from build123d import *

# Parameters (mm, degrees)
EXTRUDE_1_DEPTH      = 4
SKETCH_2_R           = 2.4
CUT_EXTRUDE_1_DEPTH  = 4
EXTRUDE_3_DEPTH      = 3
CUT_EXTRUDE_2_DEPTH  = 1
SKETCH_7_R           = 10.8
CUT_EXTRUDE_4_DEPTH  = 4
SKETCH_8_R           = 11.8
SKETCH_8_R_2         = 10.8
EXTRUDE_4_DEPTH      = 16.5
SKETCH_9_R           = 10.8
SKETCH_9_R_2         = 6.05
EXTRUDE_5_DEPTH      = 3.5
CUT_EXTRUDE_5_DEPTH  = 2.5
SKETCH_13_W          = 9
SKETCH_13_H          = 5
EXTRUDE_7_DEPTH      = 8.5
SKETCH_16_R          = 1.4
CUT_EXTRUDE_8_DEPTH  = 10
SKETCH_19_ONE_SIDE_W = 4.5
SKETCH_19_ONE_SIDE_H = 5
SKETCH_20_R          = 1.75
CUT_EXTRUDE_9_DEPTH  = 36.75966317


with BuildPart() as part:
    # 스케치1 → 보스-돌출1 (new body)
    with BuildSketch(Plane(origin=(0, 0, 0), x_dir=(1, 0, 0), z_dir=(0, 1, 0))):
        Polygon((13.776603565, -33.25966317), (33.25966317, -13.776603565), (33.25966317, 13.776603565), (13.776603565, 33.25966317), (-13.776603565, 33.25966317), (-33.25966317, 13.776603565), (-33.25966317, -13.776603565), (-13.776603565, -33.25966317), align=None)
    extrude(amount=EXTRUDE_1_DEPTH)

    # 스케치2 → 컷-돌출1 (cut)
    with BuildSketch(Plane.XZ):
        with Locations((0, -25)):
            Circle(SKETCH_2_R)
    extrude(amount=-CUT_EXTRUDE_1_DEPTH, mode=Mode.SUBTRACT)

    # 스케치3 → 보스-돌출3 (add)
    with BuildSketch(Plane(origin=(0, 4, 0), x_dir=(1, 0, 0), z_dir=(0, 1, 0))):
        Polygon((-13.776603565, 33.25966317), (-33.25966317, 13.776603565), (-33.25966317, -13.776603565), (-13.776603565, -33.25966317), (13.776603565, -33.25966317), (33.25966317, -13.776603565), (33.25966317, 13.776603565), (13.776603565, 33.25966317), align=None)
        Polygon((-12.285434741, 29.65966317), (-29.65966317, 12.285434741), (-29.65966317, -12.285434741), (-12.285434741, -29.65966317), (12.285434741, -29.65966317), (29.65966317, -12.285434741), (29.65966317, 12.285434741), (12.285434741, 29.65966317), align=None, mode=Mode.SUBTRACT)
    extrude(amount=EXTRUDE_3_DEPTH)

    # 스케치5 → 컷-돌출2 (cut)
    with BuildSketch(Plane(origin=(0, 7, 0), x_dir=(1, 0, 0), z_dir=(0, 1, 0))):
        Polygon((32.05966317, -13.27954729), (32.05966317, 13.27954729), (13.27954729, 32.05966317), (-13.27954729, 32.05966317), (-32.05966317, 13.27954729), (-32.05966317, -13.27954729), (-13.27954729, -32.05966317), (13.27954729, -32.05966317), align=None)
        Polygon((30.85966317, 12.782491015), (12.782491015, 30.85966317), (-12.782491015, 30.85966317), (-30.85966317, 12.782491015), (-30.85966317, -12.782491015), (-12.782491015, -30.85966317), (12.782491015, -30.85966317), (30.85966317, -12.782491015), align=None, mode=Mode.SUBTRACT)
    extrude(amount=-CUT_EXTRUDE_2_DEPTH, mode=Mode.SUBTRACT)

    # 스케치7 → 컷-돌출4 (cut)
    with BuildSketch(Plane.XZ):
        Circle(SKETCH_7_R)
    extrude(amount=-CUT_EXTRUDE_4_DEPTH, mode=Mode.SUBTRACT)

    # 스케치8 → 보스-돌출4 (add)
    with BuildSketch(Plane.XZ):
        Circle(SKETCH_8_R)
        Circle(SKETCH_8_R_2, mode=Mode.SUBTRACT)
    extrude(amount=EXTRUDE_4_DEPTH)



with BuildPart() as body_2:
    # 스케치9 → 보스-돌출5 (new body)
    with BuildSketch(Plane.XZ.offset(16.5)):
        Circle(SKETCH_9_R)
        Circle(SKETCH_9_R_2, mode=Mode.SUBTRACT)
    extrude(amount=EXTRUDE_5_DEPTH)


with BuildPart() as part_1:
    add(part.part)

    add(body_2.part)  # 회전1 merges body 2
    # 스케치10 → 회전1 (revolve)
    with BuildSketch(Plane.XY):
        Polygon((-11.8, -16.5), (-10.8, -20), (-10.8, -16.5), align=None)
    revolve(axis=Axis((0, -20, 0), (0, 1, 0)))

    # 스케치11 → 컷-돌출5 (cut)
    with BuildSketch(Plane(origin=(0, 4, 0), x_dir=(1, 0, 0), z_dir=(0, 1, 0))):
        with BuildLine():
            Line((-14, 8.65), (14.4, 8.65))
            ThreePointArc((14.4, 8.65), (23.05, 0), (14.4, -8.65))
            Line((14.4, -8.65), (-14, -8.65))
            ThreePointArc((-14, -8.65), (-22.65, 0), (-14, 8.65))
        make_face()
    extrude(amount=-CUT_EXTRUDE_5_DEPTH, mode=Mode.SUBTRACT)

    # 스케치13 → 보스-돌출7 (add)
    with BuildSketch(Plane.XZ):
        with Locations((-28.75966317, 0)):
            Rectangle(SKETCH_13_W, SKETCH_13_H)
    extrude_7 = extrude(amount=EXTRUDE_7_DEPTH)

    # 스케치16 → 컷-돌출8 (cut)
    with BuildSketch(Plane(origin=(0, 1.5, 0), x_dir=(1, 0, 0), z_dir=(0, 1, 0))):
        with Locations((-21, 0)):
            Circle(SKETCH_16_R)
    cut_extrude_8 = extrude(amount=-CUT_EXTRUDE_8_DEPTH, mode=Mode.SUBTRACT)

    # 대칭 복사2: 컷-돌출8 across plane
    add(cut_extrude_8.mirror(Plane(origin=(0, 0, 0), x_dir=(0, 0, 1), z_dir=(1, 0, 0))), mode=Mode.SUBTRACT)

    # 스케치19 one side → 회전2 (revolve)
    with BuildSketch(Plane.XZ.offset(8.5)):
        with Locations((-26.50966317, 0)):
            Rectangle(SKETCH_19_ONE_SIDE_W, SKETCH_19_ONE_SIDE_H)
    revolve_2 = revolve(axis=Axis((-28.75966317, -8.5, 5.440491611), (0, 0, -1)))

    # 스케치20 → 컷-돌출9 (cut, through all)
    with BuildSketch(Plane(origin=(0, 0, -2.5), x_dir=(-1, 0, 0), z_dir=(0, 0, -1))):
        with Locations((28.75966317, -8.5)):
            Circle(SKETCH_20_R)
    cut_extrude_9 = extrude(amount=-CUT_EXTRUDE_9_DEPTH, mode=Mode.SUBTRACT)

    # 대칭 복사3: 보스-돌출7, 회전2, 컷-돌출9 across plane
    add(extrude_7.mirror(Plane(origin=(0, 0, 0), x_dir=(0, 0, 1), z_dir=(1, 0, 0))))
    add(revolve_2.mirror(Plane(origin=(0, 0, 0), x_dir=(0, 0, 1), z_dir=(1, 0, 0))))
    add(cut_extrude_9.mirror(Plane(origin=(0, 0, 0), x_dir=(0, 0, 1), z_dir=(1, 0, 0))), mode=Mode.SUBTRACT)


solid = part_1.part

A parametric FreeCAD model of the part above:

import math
import FreeCAD as App
import Part
import Sketcher
from FreeCAD import Vector


def add_polygon(sketch, points):
    """Adds a closed chain of lines whose ends are joined by coincident constraints."""
    first, n = sketch.GeometryCount, len(points)
    for a, b in zip(points, points[1:] + points[:1]):
        sketch.addGeometry(Part.LineSegment(App.Vector(*a, 0), App.Vector(*b, 0)), False)
    for i in range(n):
        sketch.addConstraint(Sketcher.Constraint("Coincident", first + i, 2, first + (i + 1) % n, 1))

doc = App.newDocument("Part")
body = doc.addObject("PartDesign::Body", "Body")

# Sketch on XZ plane
sketch1 = doc.addObject("Sketcher::SketchObject", "Sketch")
body.addObject(sketch1)
sketch1.AttachmentSupport = (doc.XZ_Plane, [""])
sketch1.MapMode = "FlatFace"
add_polygon(sketch1, [(13.776604, 33.259663), (33.259663, 13.776604), (33.259663, -13.776604), (13.776604, -33.259663), (-13.776604, -33.259663), (-33.259663, -13.776604), (-33.259663, 13.776604), (-13.776604, 33.259663)])  # lines 0-7
sketch1.addConstraint([
    Sketcher.Constraint("Vertical", 1),
    Sketcher.Constraint("Horizontal", 3),
    Sketcher.Constraint("Vertical", 5),
    Sketcher.Constraint("Horizontal", 7),
    Sketcher.Constraint("Symmetric", 0, 2, 4, 2, -1, 1),
    Sketcher.Constraint("Symmetric", 2, 2, 6, 2, -1, 1),
    Sketcher.Constraint("Perpendicular", 0, 2),
    Sketcher.Constraint("Perpendicular", 2, 4),
    Sketcher.Constraint("Perpendicular", 4, 6),
    Sketcher.Constraint("Horizontal", 1, 2, 4, 2),
    Sketcher.Constraint("Vertical", 3, 2, 6, 2),
    Sketcher.Constraint("Equal", 7, 1),
    Sketcher.Constraint("DistanceX", 3, 2, 3, 1, 27.553207),
    Sketcher.Constraint("DistanceX", 2, 2, 1, 2, 19.48306),
])
pad1 = doc.addObject("PartDesign::Pad", "Pad")
body.addObject(pad1)
pad1.Profile = sketch1
pad1.Length = 4
pad1.Reversed = True

# Sketch on XZ plane
sketch2 = doc.addObject("Sketcher::SketchObject", "Sketch001")
body.addObject(sketch2)
sketch2.AttachmentSupport = (doc.XZ_Plane, [""])
sketch2.MapMode = "FlatFace"
sketch2.addGeometry(Part.Circle(Vector(0, -25, 0), Vector(0, 0, 1), 2.4), False)
sketch2.addConstraint([
    Sketcher.Constraint("PointOnObject", 0, 3, -2),
    Sketcher.Constraint("Diameter", 0, 4.8),
    Sketcher.Constraint("DistanceY", 0, 3, -1, 1, 25.0),
])
pocket1 = doc.addObject("PartDesign::Pocket", "Pocket")
body.addObject(pocket1)
pocket1.Profile = sketch2
pocket1.Length = 4

# Sketch on XZ plane
sketch3 = doc.addObject("Sketcher::SketchObject", "Sketch002")
body.addObject(sketch3)
sketch3.AttachmentSupport = (doc.XZ_Plane, [""])
sketch3.MapMode = "FlatFace"
sketch3.AttachmentOffset = App.Placement(Vector(0, 0, -4), App.Rotation())
add_polygon(sketch3, [(-13.776604, -33.259663), (-33.259663, -13.776604), (-33.259663, 13.776604), (-13.776604, 33.259663), (13.776604, 33.259663), (33.259663, 13.776604), (33.259663, -13.776604), (13.776604, -33.259663)])  # lines 0-7
add_polygon(sketch3, [(-29.659663, -12.285435), (-12.285435, -29.659663), (12.285435, -29.659663), (29.659663, -12.285435), (29.659663, 12.285435), (12.285435, 29.659663), (-12.285435, 29.659663), (-29.659663, 12.285435)])  # lines 8-15
sketch3.addConstraint([
    Sketcher.Constraint("Vertical", 1),
    Sketcher.Constraint("Horizontal", 3),
    Sketcher.Constraint("Vertical", 5),
    Sketcher.Constraint("Horizontal", 7),
    Sketcher.Constraint("Horizontal", 9),
    Sketcher.Constraint("Vertical", 11),
    Sketcher.Constraint("Horizontal", 13),
    Sketcher.Constraint("Vertical", 15),
    Sketcher.Constraint("Symmetric", 0, 2, 4, 2, -1, 1),
    Sketcher.Constraint("Symmetric", 2, 2, 6, 2, -1, 1),
    Sketcher.Constraint("Symmetric", 8, 2, 12, 2, -1, 1),
    Sketcher.Constraint("Symmetric", 10, 2, 14, 2, -1, 1),
    Sketcher.Constraint("Perpendicular", 0, 2),
    Sketcher.Constraint("Perpendicular", 2, 4),
    Sketcher.Constraint("Perpendicular", 4, 6),
    Sketcher.Constraint("Perpendicular", 6, 8),
    Sketcher.Constraint("Perpendicular", 8, 10),
    Sketcher.Constraint("Perpendicular", 10, 12),
    Sketcher.Constraint("Perpendicular", 12, 14),
    Sketcher.Constraint("Horizontal", 1, 2, 4, 2),
    Sketcher.Constraint("Horizontal", 11, 2, 14, 2),
    Sketcher.Constraint("Vertical", 3, 2, 6, 2),
    Sketcher.Constraint("Equal", 7, 1),
    Sketcher.Constraint("Equal", 13, 11),
    Sketcher.Constraint("DistanceY", 7, 2, 8, 2, 3.6),
    Sketcher.Constraint("DistanceX", 9, 1, 9, 2, 24.570869),
    Sketcher.Constraint("Distance", 8, 24.570869),
    Sketcher.Constraint("DistanceX", 3, 1, 3, 2, 27.553207),
])
pad2 = doc.addObject("PartDesign::Pad", "Pad001")
body.addObject(pad2)
pad2.Profile = sketch3
pad2.Length = 3
pad2.Reversed = True

# Sketch on XZ plane
sketch4 = doc.addObject("Sketcher::SketchObject", "Sketch003")
body.addObject(sketch4)
sketch4.AttachmentSupport = (doc.XZ_Plane, [""])
sketch4.MapMode = "FlatFace"
sketch4.AttachmentOffset = App.Placement(Vector(0, 0, -7), App.Rotation())
add_polygon(sketch4, [(32.059663, 13.279547), (32.059663, -13.279547), (13.279547, -32.059663), (-13.279547, -32.059663), (-32.059663, -13.279547), (-32.059663, 13.279547), (-13.279547, 32.059663), (13.279547, 32.059663)])  # lines 0-7
add_polygon(sketch4, [(12.782491, -30.859663), (30.859663, -12.782491), (30.859663, 12.782491), (12.782491, 30.859663), (-12.782491, 30.859663), (-30.859663, 12.782491), (-30.859663, -12.782491), (-12.782491, -30.859663)])  # lines 8-15
sketch4.addConstraint([
    Sketcher.Constraint("Vertical", 0),
    Sketcher.Constraint("Horizontal", 2),
    Sketcher.Constraint("Vertical", 4),
    Sketcher.Constraint("Horizontal", 6),
    Sketcher.Constraint("Vertical", 9),
    Sketcher.Constraint("Horizontal", 11),
    Sketcher.Constraint("Vertical", 13),
    Sketcher.Constraint("Horizontal", 15),
    Sketcher.Constraint("Symmetric", 0, 2, 4, 2, -1, 1),
    Sketcher.Constraint("Symmetric", 1, 2, 5, 2, -1, 1),
    Sketcher.Constraint("Symmetric", 8, 2, 12, 2, -1, 1),
    Sketcher.Constraint("Symmetric", 10, 2, 14, 2, -1, 1),
    Sketcher.Constraint("Perpendicular", 1, 3),
    Sketcher.Constraint("Perpendicular", 5, 7),
    Sketcher.Constraint("Perpendicular", 7, 8),
    Sketcher.Constraint("Perpendicular", 8, 10),
    Sketcher.Constraint("Perpendicular", 10, 12),
    Sketcher.Constraint("Perpendicular", 12, 14),
    Sketcher.Constraint("Horizontal", 0, 2, 3, 2),
    Sketcher.Constraint("Horizontal", 4, 2, 7, 2),
    Sketcher.Constraint("Horizontal", 9, 2, 12, 2),
    Sketcher.Constraint("Vertical", 2, 2, 5, 2),
    Sketcher.Constraint("Equal", 6, 0),
    Sketcher.Constraint("Equal", 15, 9),
    Sketcher.Constraint("DistanceX", 8, 2, 0, 2, 1.2),
    Sketcher.Constraint("DistanceX", 2, 2, 2, 1, 26.559095),
    Sketcher.Constraint("DistanceX", 11, 2, 11, 1, 25.564982),
    Sketcher.Constraint("DistanceX", 2, 2, 0, 2, 45.33921),
])
pocket2 = doc.addObject("PartDesign::Pocket", "Pocket001")
body.addObject(pocket2)
pocket2.Profile = sketch4
pocket2.Length = 1
pocket2.Reversed = True

# Sketch on XZ plane
sketch5 = doc.addObject("Sketcher::SketchObject", "Sketch004")
body.addObject(sketch5)
sketch5.AttachmentSupport = (doc.XZ_Plane, [""])
sketch5.MapMode = "FlatFace"
sketch5.addGeometry(Part.Circle(Vector(0, 0, 0), Vector(0, 0, 1), 10.8), False)
sketch5.addConstraint([
    Sketcher.Constraint("Coincident", 0, 3, -1, 1),
    Sketcher.Constraint("Diameter", 0, 21.6),
])
pocket3 = doc.addObject("PartDesign::Pocket", "Pocket002")
body.addObject(pocket3)
pocket3.Profile = sketch5
pocket3.Length = 4

# Sketch on XZ plane
sketch6 = doc.addObject("Sketcher::SketchObject", "Sketch005")
body.addObject(sketch6)
sketch6.AttachmentSupport = (doc.XZ_Plane, [""])
sketch6.MapMode = "FlatFace"
sketch6.addGeometry([
    Part.Circle(Vector(0, 0, 0), Vector(0, 0, 1), 11.8),
    Part.Circle(Vector(0, 0, 0), Vector(0, 0, 1), 10.8),
], False)
sketch6.addConstraint([
    Sketcher.Constraint("Coincident", 0, 3, -1, 1),
    Sketcher.Constraint("Coincident", 1, 3, -1, 1),
    Sketcher.Constraint("Diameter", 0, 23.6),
    Sketcher.Constraint("Diameter", 1, 21.6),
])
pad3 = doc.addObject("PartDesign::Pad", "Pad002")
body.addObject(pad3)
pad3.Profile = sketch6
pad3.Length = 16.5
body2 = doc.addObject("PartDesign::Body", "Body001")

# Sketch on XZ plane
sketch7 = doc.addObject("Sketcher::SketchObject", "Sketch006")
body2.addObject(sketch7)
sketch7.AttachmentSupport = (doc.getObject("XZ_Plane001"), [""])
sketch7.MapMode = "FlatFace"
sketch7.AttachmentOffset = App.Placement(Vector(0, 0, 16.5), App.Rotation())
sketch7.addGeometry([
    Part.Circle(Vector(0, 0, 0), Vector(0, 0, 1), 10.8),
    Part.Circle(Vector(0, 0, 0), Vector(0, 0, 1), 6.05),
], False)
sketch7.addConstraint([
    Sketcher.Constraint("Coincident", 0, 3, -1, 1),
    Sketcher.Constraint("Coincident", 1, 3, -1, 1),
    Sketcher.Constraint("Diameter", 0, 21.6),
    Sketcher.Constraint("Diameter", 1, 12.1),
])
pad4 = doc.addObject("PartDesign::Pad", "Pad003")
body2.addObject(pad4)
pad4.Profile = sketch7
pad4.Length = 3.5
body.AllowCompound = True
doc.recompute()

boolean = doc.addObject("PartDesign::Boolean", "Boolean")
body.addObject(boolean)
boolean.Type = "Fuse"
boolean.addObjects([body2])

# Sketch on XY plane
sketch8 = doc.addObject("Sketcher::SketchObject", "Sketch007")
body.addObject(sketch8)
sketch8.AttachmentSupport = (doc.XY_Plane, [""])
sketch8.MapMode = "FlatFace"
add_polygon(sketch8, [(-11.8, -16.5), (-10.8, -20), (-10.8, -16.5)])  # lines 0-2
sketch8.addConstraint([
    Sketcher.Constraint("Vertical", 1),
    Sketcher.Constraint("Horizontal", 2),
    Sketcher.Constraint("DistanceX", 2, 2, 2, 1, 1.0),
    Sketcher.Constraint("DistanceY", 1, 1, 1, 2, 3.5),
    Sketcher.Constraint("DistanceY", 0, 2, -1, 1, 20.0),
    Sketcher.Constraint("DistanceX", 0, 2, -1, 1, 10.8),
])
revolution = doc.addObject("PartDesign::Revolution", "Revolution")
body.addObject(revolution)
revolution.Profile = sketch8
revolution.ReferenceAxis = (sketch8, ["V_Axis"])
revolution.Angle = 360

# Sketch on XZ plane
sketch9 = doc.addObject("Sketcher::SketchObject", "Sketch008")
body.addObject(sketch9)
sketch9.AttachmentSupport = (doc.XZ_Plane, [""])
sketch9.MapMode = "FlatFace"
sketch9.AttachmentOffset = App.Placement(Vector(0, 0, -4), App.Rotation())
sketch9.addGeometry([
    Part.LineSegment(Vector(14.4, -8.65, 0), Vector(-14, -8.65, 0)),
    Part.ArcOfCircle(Part.Circle(Vector(-14, 0, 0), Vector(0, 0, 1), 8.65), math.radians(90), math.radians(270)),
    Part.LineSegment(Vector(-14, 8.65, 0), Vector(14.4, 8.65, 0)),
    Part.ArcOfCircle(Part.Circle(Vector(14.4, 0, 0), Vector(0, 0, 1), 8.65), math.radians(-90), math.radians(90)),
], False)
sketch9.addConstraint([
    Sketcher.Constraint("Tangent", 0, 2, 1, 2),
    Sketcher.Constraint("Tangent", 1, 1, 2, 1),
    Sketcher.Constraint("Tangent", 2, 2, 3, 2),
    Sketcher.Constraint("Tangent", 3, 1, 0, 1),
    Sketcher.Constraint("Horizontal", 0),
    Sketcher.Constraint("Horizontal", 2),
    Sketcher.Constraint("PointOnObject", 1, 3, -1),
    Sketcher.Constraint("Radius", 1, 8.65),
    Sketcher.Constraint("DistanceX", 0, 2, 0, 1, 28.4),
    Sketcher.Constraint("DistanceX", 1, 3, -1, 1, 14.0),
])
pocket4 = doc.addObject("PartDesign::Pocket", "Pocket003")
body.addObject(pocket4)
pocket4.Profile = sketch9
pocket4.Length = 2.5
pocket4.Reversed = True

# Sketch on XZ plane
sketch10 = doc.addObject("Sketcher::SketchObject", "Sketch009")
body.addObject(sketch10)
sketch10.AttachmentSupport = (doc.XZ_Plane, [""])
sketch10.MapMode = "FlatFace"
add_polygon(sketch10, [(-33.259663, 2.5), (-33.259663, -2.5), (-24.259663, -2.5), (-24.259663, 2.5)])  # lines 0-3
sketch10.addConstraint([
    Sketcher.Constraint("Vertical", 0),
    Sketcher.Constraint("Horizontal", 1),
    Sketcher.Constraint("Vertical", 2),
    Sketcher.Constraint("Horizontal", 3),
    Sketcher.Constraint("DistanceX", 1, 1, 1, 2, 9.0),
    Sketcher.Constraint("DistanceY", 0, 2, 0, 1, 5.0),
    Sketcher.Constraint("DistanceY", 0, 2, -1, 1, 2.5),
    Sketcher.Constraint("DistanceX", 0, 2, -1, 1, 33.259663),
])
pad5 = doc.addObject("PartDesign::Pad", "Pad004")
body.addObject(pad5)
pad5.Profile = sketch10
pad5.Length = 8.5

# Sketch on XZ plane
sketch11 = doc.addObject("Sketcher::SketchObject", "Sketch010")
body.addObject(sketch11)
sketch11.AttachmentSupport = (doc.XZ_Plane, [""])
sketch11.MapMode = "FlatFace"
sketch11.AttachmentOffset = App.Placement(Vector(0, 0, -1.5), App.Rotation())
sketch11.addGeometry(Part.Circle(Vector(-21, 0, 0), Vector(0, 0, 1), 1.4), False)
sketch11.addConstraint([
    Sketcher.Constraint("PointOnObject", 0, 3, -1),
    Sketcher.Constraint("Diameter", 0, 2.8),
    Sketcher.Constraint("DistanceX", 0, 3, -1, 1, 21.0),
])
pocket5 = doc.addObject("PartDesign::Pocket", "Pocket004")
body.addObject(pocket5)
pocket5.Profile = sketch11
pocket5.Length = 10
pocket5.Reversed = True
doc.recompute()

mirrored = doc.addObject("PartDesign::Mirrored", "Mirrored")
body.addObject(mirrored)
mirrored.Originals = [pocket5]
mirrored.MirrorPlane = (doc.YZ_Plane, [""])
body.Tip = mirrored

# Sketch on XZ plane
sketch12 = doc.addObject("Sketcher::SketchObject", "Sketch011")
body.addObject(sketch12)
sketch12.AttachmentSupport = (doc.XZ_Plane, [""])
sketch12.MapMode = "FlatFace"
sketch12.AttachmentOffset = App.Placement(Vector(0, 0, 8.5), App.Rotation())
add_polygon(sketch12, [(-28.759663, 2.5), (-28.759663, -2.5), (-24.259663, -2.5), (-24.259663, 2.5)])  # lines 0-3
sketch12.addGeometry(Part.LineSegment(Vector(-28.759663, 2.5, 0), Vector(-28.759663, -2.5, 0)), True)  # axis
sketch12.addConstraint([
    Sketcher.Constraint("Vertical", 0),
    Sketcher.Constraint("Horizontal", 1),
    Sketcher.Constraint("Vertical", 2),
    Sketcher.Constraint("Horizontal", 3),
    Sketcher.Constraint("Vertical", 4),
    Sketcher.Constraint("Coincident", 4, 1, 3, 2),
    Sketcher.Constraint("Horizontal", 1, 2, 4, 2),
    Sketcher.Constraint("DistanceY", 0, 2, 0, 1, 5.0),
    Sketcher.Constraint("DistanceX", 1, 1, 1, 2, 4.5),
    Sketcher.Constraint("DistanceY", 0, 2, -1, 1, 2.5),
    Sketcher.Constraint("DistanceX", 0, 2, -1, 1, 28.759663),
])
revolution2 = doc.addObject("PartDesign::Revolution", "Revolution001")
body.addObject(revolution2)
revolution2.Profile = sketch12
revolution2.ReferenceAxis = (sketch12, ["Axis0"])
revolution2.Angle = 360

# Sketch on XY plane
sketch13 = doc.addObject("Sketcher::SketchObject", "Sketch012")
body.addObject(sketch13)
sketch13.AttachmentSupport = (doc.XY_Plane, [""])
sketch13.MapMode = "FlatFace"
sketch13.AttachmentOffset = App.Placement(Vector(0, 0, -2.5), App.Rotation())
sketch13.addGeometry(Part.Circle(Vector(-28.759663, -8.5, 0), Vector(0, 0, 1), 1.75), False)
sketch13.addConstraint([
    Sketcher.Constraint("Diameter", 0, 3.5),
    Sketcher.Constraint("DistanceY", 0, 3, -1, 1, 8.5),
    Sketcher.Constraint("DistanceX", 0, 3, -1, 1, 28.759663),
])
pocket6 = doc.addObject("PartDesign::Pocket", "Pocket005")
body.addObject(pocket6)
pocket6.Profile = sketch13
pocket6.Type = "ThroughAll"
pocket6.Reversed = True
doc.recompute()

mirrored2 = doc.addObject("PartDesign::Mirrored", "Mirrored001")
body.addObject(mirrored2)
mirrored2.Originals = [pad5, revolution2, pocket6]
mirrored2.MirrorPlane = (doc.YZ_Plane, [""])
body.Tip = mirrored2

doc.recompute()
